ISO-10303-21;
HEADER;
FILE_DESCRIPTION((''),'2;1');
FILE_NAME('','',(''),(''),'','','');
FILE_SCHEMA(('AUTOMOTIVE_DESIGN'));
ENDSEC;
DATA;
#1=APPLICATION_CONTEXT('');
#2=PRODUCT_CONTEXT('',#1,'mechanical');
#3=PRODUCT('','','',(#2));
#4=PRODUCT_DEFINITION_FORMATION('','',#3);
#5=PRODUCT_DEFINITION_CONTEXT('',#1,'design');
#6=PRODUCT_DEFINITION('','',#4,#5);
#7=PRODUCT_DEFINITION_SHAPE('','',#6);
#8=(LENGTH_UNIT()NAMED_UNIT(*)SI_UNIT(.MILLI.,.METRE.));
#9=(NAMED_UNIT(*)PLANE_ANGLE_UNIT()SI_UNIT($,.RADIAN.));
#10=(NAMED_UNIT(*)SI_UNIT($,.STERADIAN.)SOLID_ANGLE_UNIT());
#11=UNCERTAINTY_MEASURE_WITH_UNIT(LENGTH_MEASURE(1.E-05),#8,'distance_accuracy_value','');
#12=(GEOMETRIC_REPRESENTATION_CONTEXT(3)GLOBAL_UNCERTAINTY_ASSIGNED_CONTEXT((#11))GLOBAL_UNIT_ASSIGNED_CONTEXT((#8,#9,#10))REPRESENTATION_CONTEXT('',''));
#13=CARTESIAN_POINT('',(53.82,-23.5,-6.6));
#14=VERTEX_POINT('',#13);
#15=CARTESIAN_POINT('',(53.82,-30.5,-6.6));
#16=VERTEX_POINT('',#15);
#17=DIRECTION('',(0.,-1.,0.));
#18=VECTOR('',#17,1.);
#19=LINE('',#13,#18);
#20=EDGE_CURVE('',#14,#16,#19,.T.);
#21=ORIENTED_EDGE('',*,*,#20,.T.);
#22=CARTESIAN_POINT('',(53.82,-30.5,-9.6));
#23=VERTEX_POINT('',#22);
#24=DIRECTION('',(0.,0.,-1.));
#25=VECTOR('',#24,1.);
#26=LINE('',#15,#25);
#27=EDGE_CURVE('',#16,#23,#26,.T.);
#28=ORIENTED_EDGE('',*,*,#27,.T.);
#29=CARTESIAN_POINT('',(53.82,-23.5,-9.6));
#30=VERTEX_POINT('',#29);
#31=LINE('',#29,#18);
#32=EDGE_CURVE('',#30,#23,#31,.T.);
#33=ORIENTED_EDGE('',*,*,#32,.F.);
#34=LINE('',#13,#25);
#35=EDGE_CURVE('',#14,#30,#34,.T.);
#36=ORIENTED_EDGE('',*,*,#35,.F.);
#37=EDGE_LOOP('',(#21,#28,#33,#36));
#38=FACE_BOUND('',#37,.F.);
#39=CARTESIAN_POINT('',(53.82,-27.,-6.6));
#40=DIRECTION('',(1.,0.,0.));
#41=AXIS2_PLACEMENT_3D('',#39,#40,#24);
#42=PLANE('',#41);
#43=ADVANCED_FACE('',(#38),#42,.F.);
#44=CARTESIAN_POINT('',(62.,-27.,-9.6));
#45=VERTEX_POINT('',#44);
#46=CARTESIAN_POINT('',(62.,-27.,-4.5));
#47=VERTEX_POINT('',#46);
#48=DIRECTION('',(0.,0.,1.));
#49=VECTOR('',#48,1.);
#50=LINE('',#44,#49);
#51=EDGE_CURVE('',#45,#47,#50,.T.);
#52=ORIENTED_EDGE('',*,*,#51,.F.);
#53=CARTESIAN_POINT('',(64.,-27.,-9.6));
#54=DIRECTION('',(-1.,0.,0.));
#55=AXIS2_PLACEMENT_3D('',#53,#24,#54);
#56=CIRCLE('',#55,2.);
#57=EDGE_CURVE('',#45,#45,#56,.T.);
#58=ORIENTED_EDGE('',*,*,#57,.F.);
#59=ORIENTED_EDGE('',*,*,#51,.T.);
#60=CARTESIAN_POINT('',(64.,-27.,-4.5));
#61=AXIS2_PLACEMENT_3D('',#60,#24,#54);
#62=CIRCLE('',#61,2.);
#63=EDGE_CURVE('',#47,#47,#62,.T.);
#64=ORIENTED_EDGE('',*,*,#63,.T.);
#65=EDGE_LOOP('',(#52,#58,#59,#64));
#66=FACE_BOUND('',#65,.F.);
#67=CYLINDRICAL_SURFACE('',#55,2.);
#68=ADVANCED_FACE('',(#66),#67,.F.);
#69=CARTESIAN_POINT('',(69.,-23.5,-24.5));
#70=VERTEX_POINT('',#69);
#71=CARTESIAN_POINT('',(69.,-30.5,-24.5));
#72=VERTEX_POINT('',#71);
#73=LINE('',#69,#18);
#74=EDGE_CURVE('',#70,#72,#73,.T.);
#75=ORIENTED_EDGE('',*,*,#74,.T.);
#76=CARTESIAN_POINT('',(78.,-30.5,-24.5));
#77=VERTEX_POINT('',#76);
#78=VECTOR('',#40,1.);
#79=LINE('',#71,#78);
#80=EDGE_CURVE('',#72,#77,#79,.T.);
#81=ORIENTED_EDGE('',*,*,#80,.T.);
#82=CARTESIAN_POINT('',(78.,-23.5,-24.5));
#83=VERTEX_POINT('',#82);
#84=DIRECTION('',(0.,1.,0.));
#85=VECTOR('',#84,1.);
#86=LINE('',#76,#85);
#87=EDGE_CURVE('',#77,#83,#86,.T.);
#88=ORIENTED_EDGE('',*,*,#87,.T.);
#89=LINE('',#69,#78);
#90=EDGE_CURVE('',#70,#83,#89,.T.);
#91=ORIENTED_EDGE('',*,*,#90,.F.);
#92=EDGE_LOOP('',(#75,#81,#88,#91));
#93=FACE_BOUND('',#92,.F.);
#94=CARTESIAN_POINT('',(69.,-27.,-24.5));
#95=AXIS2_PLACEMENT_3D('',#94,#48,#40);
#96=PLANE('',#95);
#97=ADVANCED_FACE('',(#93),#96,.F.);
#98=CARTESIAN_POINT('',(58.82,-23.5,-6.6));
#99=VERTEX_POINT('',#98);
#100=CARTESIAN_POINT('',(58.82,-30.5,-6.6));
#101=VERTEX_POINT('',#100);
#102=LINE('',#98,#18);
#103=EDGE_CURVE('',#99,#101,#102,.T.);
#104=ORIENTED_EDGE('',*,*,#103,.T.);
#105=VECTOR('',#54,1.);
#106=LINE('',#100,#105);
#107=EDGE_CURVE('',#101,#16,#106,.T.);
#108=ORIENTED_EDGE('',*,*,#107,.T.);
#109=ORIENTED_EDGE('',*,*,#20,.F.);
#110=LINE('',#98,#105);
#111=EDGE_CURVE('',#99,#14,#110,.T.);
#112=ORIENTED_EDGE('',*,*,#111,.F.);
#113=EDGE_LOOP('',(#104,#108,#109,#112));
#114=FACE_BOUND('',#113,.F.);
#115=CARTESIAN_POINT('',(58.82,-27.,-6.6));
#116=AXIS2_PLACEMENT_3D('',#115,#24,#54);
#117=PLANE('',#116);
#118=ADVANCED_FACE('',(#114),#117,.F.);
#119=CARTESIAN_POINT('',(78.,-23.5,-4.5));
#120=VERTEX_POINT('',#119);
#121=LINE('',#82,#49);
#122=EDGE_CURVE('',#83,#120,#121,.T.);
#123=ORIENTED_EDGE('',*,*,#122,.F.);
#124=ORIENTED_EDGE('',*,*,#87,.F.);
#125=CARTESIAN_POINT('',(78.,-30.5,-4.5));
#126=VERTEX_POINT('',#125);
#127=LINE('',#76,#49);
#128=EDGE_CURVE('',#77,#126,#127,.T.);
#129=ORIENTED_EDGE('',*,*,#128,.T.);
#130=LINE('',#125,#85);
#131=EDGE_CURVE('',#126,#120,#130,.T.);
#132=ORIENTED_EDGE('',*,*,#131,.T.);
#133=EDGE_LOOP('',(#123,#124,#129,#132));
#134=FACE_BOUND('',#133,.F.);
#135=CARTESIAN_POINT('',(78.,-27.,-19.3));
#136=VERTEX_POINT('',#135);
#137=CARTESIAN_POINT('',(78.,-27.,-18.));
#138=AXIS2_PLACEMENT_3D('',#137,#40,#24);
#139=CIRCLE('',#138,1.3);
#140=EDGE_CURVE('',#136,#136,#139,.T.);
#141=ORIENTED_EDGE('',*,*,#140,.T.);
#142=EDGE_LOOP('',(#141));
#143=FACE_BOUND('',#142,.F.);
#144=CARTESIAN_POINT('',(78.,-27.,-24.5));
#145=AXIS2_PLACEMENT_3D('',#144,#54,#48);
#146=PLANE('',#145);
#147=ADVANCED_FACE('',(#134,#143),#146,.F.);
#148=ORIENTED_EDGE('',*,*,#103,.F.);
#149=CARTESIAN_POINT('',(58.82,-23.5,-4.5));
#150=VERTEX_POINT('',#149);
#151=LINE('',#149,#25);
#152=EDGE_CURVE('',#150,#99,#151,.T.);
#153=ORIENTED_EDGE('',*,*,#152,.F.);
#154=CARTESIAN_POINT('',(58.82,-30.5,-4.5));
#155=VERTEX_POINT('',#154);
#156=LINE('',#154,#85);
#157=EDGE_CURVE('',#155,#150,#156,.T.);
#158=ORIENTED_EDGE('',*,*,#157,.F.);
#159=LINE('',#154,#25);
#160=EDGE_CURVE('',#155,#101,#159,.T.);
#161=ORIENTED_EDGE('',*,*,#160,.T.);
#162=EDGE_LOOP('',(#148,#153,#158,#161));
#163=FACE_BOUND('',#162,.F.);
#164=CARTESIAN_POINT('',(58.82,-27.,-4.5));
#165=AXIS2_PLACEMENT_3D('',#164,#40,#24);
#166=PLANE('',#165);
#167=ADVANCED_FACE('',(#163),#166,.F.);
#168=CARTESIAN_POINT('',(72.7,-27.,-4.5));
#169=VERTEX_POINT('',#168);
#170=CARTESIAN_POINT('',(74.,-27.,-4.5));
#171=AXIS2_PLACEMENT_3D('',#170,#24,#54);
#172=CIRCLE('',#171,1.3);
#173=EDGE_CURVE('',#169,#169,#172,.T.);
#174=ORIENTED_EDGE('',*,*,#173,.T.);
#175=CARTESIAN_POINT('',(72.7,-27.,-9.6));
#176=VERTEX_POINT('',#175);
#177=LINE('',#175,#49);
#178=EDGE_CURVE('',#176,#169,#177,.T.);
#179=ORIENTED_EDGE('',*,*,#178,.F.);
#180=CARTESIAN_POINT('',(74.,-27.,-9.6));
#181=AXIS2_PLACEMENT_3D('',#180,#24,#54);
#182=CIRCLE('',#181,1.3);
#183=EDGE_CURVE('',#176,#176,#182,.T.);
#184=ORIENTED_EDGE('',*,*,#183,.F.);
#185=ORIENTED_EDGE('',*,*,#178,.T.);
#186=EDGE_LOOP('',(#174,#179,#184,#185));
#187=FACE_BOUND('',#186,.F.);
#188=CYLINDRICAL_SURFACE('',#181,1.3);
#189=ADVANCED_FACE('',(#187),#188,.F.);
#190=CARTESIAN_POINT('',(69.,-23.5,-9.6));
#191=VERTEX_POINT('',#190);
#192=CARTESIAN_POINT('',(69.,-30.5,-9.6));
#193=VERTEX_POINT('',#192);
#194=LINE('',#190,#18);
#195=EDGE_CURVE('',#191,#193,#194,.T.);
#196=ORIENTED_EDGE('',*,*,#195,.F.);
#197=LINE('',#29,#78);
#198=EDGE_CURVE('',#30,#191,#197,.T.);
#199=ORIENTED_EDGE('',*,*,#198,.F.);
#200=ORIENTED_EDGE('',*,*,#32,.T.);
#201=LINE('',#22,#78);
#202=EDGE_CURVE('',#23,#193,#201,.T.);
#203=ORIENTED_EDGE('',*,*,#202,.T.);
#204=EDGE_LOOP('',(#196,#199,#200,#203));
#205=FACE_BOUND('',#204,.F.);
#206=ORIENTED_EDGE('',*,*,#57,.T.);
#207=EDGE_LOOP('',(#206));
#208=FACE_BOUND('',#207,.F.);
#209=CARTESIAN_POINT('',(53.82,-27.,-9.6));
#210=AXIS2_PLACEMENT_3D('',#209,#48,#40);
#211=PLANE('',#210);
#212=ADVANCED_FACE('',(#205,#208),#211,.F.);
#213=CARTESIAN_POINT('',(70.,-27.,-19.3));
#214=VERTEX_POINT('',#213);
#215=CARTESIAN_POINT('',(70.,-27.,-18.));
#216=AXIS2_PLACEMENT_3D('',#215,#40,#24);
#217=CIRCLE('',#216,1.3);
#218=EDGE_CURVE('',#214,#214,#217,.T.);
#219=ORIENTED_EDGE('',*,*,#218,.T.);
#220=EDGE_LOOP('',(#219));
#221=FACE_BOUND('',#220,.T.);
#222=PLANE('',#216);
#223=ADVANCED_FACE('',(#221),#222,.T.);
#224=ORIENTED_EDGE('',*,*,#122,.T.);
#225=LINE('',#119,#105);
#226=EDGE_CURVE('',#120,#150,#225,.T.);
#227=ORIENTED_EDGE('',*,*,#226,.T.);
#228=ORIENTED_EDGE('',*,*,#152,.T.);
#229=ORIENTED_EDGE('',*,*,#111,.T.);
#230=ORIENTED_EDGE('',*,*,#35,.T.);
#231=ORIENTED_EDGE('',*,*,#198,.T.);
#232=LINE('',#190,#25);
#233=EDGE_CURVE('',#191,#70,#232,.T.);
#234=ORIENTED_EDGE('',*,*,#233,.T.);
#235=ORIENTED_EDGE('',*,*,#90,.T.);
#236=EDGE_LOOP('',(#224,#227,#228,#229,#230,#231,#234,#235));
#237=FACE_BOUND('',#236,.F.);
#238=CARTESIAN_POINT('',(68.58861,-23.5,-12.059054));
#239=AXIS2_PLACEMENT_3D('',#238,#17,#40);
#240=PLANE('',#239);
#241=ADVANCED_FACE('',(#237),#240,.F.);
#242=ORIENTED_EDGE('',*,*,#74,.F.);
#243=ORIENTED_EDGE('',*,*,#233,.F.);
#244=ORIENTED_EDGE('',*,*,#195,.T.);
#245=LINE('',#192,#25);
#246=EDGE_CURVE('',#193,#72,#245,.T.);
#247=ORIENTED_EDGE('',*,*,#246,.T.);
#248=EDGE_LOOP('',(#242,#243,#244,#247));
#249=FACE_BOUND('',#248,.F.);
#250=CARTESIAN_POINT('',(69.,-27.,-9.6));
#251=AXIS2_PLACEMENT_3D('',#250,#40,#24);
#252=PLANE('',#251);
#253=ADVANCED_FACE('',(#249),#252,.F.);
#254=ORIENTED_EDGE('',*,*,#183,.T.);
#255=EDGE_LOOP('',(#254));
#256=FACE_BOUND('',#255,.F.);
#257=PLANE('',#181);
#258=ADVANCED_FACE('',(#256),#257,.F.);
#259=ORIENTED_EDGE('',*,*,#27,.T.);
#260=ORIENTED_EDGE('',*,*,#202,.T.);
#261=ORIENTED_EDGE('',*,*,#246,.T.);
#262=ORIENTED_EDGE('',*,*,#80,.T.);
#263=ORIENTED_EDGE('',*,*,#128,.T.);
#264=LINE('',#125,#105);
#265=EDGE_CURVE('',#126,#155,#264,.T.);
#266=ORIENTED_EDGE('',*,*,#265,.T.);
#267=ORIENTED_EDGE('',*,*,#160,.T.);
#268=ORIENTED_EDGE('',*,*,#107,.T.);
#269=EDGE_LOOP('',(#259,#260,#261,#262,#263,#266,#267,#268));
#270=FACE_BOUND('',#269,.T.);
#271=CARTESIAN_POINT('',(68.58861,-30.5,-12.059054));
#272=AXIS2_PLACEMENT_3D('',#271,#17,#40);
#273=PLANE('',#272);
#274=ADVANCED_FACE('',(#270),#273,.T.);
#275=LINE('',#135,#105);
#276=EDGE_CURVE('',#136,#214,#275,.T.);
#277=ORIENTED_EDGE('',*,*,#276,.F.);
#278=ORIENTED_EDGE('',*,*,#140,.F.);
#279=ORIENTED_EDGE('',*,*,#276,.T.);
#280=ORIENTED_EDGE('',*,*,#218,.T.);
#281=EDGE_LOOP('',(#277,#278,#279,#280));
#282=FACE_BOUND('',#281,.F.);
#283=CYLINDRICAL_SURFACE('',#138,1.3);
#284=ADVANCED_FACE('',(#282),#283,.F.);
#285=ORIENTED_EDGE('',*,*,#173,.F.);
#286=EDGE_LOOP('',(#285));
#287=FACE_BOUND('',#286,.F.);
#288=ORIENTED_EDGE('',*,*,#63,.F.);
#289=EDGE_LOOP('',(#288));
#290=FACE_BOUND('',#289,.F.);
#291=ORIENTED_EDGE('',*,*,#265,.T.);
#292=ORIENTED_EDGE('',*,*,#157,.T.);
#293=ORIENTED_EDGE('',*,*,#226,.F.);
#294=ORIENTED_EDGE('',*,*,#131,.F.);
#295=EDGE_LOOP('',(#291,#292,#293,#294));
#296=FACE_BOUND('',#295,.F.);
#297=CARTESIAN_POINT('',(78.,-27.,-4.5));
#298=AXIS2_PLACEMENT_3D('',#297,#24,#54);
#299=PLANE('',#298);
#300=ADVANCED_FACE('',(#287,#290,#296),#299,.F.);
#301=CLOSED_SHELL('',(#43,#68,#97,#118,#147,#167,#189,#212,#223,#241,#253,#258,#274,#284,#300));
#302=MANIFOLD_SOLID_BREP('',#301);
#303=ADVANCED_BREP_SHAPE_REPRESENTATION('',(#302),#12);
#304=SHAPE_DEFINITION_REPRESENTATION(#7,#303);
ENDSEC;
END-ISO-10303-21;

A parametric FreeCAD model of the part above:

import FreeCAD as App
import Part
import Sketcher

V = App.Vector
Q = App.Units.Quantity


def add_polygon(sketch, points):
    """Adds a closed chain of lines whose ends are joined by coincident constraints."""
    first, n = sketch.GeometryCount, len(points)
    for a, b in zip(points, points[1:] + points[:1]):
        sketch.addGeometry(Part.LineSegment(App.Vector(*a, 0), App.Vector(*b, 0)), False)
    for i in range(n):
        sketch.addConstraint(Sketcher.Constraint("Coincident", first + i, 2, first + (i + 1) % n, 1))

doc = App.newDocument("Part")
body = doc.addObject("PartDesign::Body", "Body")

# Sketch on XZ plane
sketch1 = doc.addObject("Sketcher::SketchObject", "Sketch")
body.addObject(sketch1)
sketch1.AttachmentSupport = (doc.XZ_Plane, [""])
sketch1.MapMode = "FlatFace"
add_polygon(sketch1, [(-58.8, -6.6), (-58.8, -4.5), (-78, -4.5), (-78, -24.5), (-69, -24.5), (-69, -9.6), (-53.8, -9.6), (-53.8, -6.6)])  # lines 0-7
sketch1.addConstraint([
    Sketcher.Constraint("Vertical", 0),
    Sketcher.Constraint("Horizontal", 1),
    Sketcher.Constraint("Vertical", 2),
    Sketcher.Constraint("Horizontal", 3),
    Sketcher.Constraint("Vertical", 4),
    Sketcher.Constraint("Horizontal", 5),
    Sketcher.Constraint("Vertical", 6),
    Sketcher.Constraint("Horizontal", 7),
    Sketcher.Constraint("DistanceX", 3, 1, 3, 2, Q("9 mm")),
    Sketcher.Constraint("DistanceX", 7, 2, 7, 1, Q("5 mm")),
    Sketcher.Constraint("DistanceY", 2, 2, 2, 1, Q("20 mm")),
    Sketcher.Constraint("DistanceY", 6, 1, 6, 2, Q("3 mm")),
    Sketcher.Constraint("DistanceY", 0, 1, 0, 2, Q("2.1 mm")),
    Sketcher.Constraint("DistanceX", 1, 2, -1, 1, Q("78 mm")),
    Sketcher.Constraint("DistanceX", 1, 2, 1, 1, Q("19.18 mm")),
    Sketcher.Constraint("DistanceY", 0, 2, -1, 1, Q("4.5 mm")),
])
pad1 = doc.addObject("PartDesign::Pad", "Pad")
body.addObject(pad1)
pad1.Profile = sketch1
pad1.Type = "TwoLengths"
pad1.Length = 3.5
pad1.Length2 = 3.5

# Sketch on XY plane
sketch2 = doc.addObject("Sketcher::SketchObject", "Sketch001")
body.addObject(sketch2)
sketch2.AttachmentSupport = (doc.XY_Plane, [""])
sketch2.MapMode = "FlatFace"
sketch2.AttachmentOffset = App.Placement(V(0, 0, -9.6), App.Rotation())
sketch2.addGeometry([
    Part.Circle(V(-64, 0, 0), V(0, 0, 1), 2),
    Part.Circle(V(-74, 0, 0), V(0, 0, 1), 1.3),
], False)
sketch2.addConstraint([
    Sketcher.Constraint("PointOnObject", 0, 3, -1),
    Sketcher.Constraint("PointOnObject", 1, 3, -1),
    Sketcher.Constraint("Diameter", 0, Q("4 mm")),
    Sketcher.Constraint("Diameter", 1, Q("2.6 mm")),
    Sketcher.Constraint("DistanceX", 0, 3, -1, 1, Q("64 mm")),
    Sketcher.Constraint("DistanceX", 1, 3, -1, 1, Q("74 mm")),
])
pocket1 = doc.addObject("PartDesign::Pocket", "Pocket")
body.addObject(pocket1)
pocket1.Profile = sketch2
pocket1.Length = 8
pocket1.Reversed = True

# Sketch on YZ plane
sketch3 = doc.addObject("Sketcher::SketchObject", "Sketch002")
body.addObject(sketch3)
sketch3.AttachmentSupport = (doc.YZ_Plane, [""])
sketch3.MapMode = "FlatFace"
sketch3.AttachmentOffset = App.Placement(V(0, 0, -78), App.Rotation())
sketch3.addGeometry(Part.Circle(V(0, -18, 0), V(0, 0, 1), 1.3), False)
sketch3.addConstraint([
    Sketcher.Constraint("PointOnObject", 0, 3, -2),
    Sketcher.Constraint("Diameter", 0, Q("2.6 mm")),
    Sketcher.Constraint("DistanceY", 0, 3, -1, 1, Q("18 mm")),
])
pocket2 = doc.addObject("PartDesign::Pocket", "Pocket001")
body.addObject(pocket2)
pocket2.Profile = sketch3
pocket2.Length = 8
pocket2.Reversed = True
body2 = doc.addObject("PartDesign::Body", "Body001")
doc.recompute()

body.Placement = App.Placement(V(0, -27, 0), App.Rotation(V(0, 0, 1), 180))
boolean = doc.addObject("PartDesign::Boolean", "Boolean")
body2.addObject(boolean)
boolean.Type = "Fuse"
boolean.addObjects([body])

doc.recompute()
